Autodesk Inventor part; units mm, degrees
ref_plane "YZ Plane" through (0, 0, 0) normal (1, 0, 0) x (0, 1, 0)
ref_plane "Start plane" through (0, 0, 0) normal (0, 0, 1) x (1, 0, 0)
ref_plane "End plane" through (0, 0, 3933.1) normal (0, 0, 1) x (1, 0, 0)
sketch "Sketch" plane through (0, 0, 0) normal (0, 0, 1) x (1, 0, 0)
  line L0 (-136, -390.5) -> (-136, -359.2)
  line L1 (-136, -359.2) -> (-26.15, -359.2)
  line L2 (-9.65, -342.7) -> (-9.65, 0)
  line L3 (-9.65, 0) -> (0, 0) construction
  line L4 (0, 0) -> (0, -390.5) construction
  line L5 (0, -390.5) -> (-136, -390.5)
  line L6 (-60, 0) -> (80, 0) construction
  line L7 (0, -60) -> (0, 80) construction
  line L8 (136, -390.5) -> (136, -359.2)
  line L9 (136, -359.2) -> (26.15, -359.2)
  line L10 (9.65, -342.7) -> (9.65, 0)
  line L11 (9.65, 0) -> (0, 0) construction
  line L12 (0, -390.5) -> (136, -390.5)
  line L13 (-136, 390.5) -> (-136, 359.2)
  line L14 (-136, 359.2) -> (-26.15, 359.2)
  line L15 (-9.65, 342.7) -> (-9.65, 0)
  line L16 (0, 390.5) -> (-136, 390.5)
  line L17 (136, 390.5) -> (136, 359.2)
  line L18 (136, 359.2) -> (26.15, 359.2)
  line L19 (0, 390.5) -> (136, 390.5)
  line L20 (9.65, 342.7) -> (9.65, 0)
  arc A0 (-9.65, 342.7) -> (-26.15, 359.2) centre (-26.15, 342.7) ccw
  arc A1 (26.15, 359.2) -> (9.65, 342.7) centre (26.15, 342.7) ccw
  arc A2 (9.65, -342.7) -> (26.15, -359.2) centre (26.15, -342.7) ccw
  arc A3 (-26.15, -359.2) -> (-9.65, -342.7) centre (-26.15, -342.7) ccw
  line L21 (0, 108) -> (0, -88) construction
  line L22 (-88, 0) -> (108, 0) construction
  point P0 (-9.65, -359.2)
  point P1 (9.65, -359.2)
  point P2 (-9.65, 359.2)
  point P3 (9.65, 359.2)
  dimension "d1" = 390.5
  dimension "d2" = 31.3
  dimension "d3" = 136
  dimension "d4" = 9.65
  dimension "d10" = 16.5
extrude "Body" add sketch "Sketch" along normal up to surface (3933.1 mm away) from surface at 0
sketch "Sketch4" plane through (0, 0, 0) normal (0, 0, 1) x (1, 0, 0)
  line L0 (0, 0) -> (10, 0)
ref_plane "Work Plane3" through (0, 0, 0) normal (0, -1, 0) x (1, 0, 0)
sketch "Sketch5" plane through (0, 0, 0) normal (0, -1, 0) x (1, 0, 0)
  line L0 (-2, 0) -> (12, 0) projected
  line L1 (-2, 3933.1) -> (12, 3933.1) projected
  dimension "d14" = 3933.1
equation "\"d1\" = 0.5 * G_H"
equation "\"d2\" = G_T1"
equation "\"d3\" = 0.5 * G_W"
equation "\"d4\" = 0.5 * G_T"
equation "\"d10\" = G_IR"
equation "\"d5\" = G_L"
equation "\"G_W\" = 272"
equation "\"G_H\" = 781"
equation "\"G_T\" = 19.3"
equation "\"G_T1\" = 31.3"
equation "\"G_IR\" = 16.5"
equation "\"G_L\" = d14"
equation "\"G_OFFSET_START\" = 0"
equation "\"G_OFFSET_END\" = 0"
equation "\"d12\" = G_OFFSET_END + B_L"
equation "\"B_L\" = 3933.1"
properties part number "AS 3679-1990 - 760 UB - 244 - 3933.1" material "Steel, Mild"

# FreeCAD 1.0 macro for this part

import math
import FreeCAD as App
import Part
import Sketcher
from FreeCAD import Vector
Q = App.Units.Quantity

doc = App.newDocument("Part")
body = doc.addObject("PartDesign::Body", "Body")

sketch1 = body.newObject("Sketcher::SketchObject", "Sketch")
sketch1.AttachmentSupport = (doc.getObject("XY_Plane"), [""])
sketch1.MapMode = "FlatFace"
sketch1.addGeometry([
    Part.LineSegment(Vector(-136, -359, 0), Vector(-136, -390, 0)),
    Part.LineSegment(Vector(-136, -390, 0), Vector(136, -390, 0)),
    Part.LineSegment(Vector(136, -390, 0), Vector(136, -359, 0)),
    Part.LineSegment(Vector(136, -359, 0), Vector(26, -359, 0)),
    Part.ArcOfCircle(Part.Circle(Vector(26, -343, 0), Vector(0, 0, 1), 16), math.radians(180), math.radians(270)),
    Part.LineSegment(Vector(10, -343, 0), Vector(10, 343, 0)),
    Part.ArcOfCircle(Part.Circle(Vector(26, 343, 0), Vector(0, 0, 1), 16), math.radians(90), math.radians(180)),
    Part.LineSegment(Vector(26, 359, 0), Vector(136, 359, 0)),
    Part.LineSegment(Vector(136, 359, 0), Vector(136, 390, 0)),
    Part.LineSegment(Vector(136, 390, 0), Vector(-136, 390, 0)),
    Part.LineSegment(Vector(-136, 390, 0), Vector(-136, 359, 0)),
    Part.LineSegment(Vector(-136, 359, 0), Vector(-26, 359, 0)),
    Part.ArcOfCircle(Part.Circle(Vector(-26, 343, 0), Vector(0, 0, 1), 16), math.radians(0), math.radians(90)),
    Part.LineSegment(Vector(-10, 343, 0), Vector(-10, -343, 0)),
    Part.ArcOfCircle(Part.Circle(Vector(-26, -343, 0), Vector(0, 0, 1), 16), math.radians(-90), math.radians(0)),
    Part.LineSegment(Vector(-26, -359, 0), Vector(-136, -359, 0)),
], False)
sketch1.addConstraint([
    Sketcher.Constraint("Coincident", 0, 2, 1, 1),
    Sketcher.Constraint("Coincident", 1, 2, 2, 1),
    Sketcher.Constraint("Coincident", 2, 2, 3, 1),
    Sketcher.Constraint("Tangent", 3, 2, 4, 2),
    Sketcher.Constraint("Tangent", 4, 1, 5, 1),
    Sketcher.Constraint("Tangent", 5, 2, 6, 2),
    Sketcher.Constraint("Tangent", 6, 1, 7, 1),
    Sketcher.Constraint("Coincident", 7, 2, 8, 1),
    Sketcher.Constraint("Coincident", 8, 2, 9, 1),
    Sketcher.Constraint("Coincident", 9, 2, 10, 1),
    Sketcher.Constraint("Coincident", 10, 2, 11, 1),
    Sketcher.Constraint("Tangent", 11, 2, 12, 2),
    Sketcher.Constraint("Tangent", 12, 1, 13, 1),
    Sketcher.Constraint("Tangent", 13, 2, 14, 2),
    Sketcher.Constraint("Tangent", 14, 1, 15, 1),
    Sketcher.Constraint("Coincident", 15, 2, 0, 1),
    Sketcher.Constraint("Vertical", 0),
    Sketcher.Constraint("Horizontal", 1),
    Sketcher.Constraint("Vertical", 2),
    Sketcher.Constraint("Horizontal", 3),
    Sketcher.Constraint("Vertical", 5),
    Sketcher.Constraint("Horizontal", 7),
    Sketcher.Constraint("Vertical", 8),
    Sketcher.Constraint("Horizontal", 9),
    Sketcher.Constraint("Vertical", 10),
    Sketcher.Constraint("Horizontal", 11),
    Sketcher.Constraint("Vertical", 13),
    Sketcher.Constraint("Horizontal", 15),
    Sketcher.Constraint("Equal", 4, 6),
    Sketcher.Constraint("Equal", 6, 12),
    Sketcher.Constraint("Equal", 12, 14),
    Sketcher.Constraint("Symmetric", 4, 3, 12, 3, -1, 1),
    Sketcher.Constraint("Symmetric", 0, 2, 8, 2, -1, 1),
    Sketcher.Constraint("Symmetric", 7, 2, 10, 2, -2),
    Sketcher.Constraint("Symmetric", 2, 2, 15, 2, -2),
    Sketcher.Constraint("Radius", 4, Q("16.5 mm")),
    Sketcher.Constraint("DistanceY", 0, 2, 0, 1, Q("31.3 mm")),
    Sketcher.Constraint("DistanceX", 0, 2, -1, 1, Q("136 mm")),
    Sketcher.Constraint("DistanceY", 0, 2, -1, 1, Q("390.5 mm")),
    Sketcher.Constraint("DistanceX", -1, 1, 4, 1, Q("9.65 mm")),
])
pad1 = body.newObject("PartDesign::Pad", "Pad")
pad1.Profile = sketch1
pad1.Length = 3933.1

doc.recompute()
